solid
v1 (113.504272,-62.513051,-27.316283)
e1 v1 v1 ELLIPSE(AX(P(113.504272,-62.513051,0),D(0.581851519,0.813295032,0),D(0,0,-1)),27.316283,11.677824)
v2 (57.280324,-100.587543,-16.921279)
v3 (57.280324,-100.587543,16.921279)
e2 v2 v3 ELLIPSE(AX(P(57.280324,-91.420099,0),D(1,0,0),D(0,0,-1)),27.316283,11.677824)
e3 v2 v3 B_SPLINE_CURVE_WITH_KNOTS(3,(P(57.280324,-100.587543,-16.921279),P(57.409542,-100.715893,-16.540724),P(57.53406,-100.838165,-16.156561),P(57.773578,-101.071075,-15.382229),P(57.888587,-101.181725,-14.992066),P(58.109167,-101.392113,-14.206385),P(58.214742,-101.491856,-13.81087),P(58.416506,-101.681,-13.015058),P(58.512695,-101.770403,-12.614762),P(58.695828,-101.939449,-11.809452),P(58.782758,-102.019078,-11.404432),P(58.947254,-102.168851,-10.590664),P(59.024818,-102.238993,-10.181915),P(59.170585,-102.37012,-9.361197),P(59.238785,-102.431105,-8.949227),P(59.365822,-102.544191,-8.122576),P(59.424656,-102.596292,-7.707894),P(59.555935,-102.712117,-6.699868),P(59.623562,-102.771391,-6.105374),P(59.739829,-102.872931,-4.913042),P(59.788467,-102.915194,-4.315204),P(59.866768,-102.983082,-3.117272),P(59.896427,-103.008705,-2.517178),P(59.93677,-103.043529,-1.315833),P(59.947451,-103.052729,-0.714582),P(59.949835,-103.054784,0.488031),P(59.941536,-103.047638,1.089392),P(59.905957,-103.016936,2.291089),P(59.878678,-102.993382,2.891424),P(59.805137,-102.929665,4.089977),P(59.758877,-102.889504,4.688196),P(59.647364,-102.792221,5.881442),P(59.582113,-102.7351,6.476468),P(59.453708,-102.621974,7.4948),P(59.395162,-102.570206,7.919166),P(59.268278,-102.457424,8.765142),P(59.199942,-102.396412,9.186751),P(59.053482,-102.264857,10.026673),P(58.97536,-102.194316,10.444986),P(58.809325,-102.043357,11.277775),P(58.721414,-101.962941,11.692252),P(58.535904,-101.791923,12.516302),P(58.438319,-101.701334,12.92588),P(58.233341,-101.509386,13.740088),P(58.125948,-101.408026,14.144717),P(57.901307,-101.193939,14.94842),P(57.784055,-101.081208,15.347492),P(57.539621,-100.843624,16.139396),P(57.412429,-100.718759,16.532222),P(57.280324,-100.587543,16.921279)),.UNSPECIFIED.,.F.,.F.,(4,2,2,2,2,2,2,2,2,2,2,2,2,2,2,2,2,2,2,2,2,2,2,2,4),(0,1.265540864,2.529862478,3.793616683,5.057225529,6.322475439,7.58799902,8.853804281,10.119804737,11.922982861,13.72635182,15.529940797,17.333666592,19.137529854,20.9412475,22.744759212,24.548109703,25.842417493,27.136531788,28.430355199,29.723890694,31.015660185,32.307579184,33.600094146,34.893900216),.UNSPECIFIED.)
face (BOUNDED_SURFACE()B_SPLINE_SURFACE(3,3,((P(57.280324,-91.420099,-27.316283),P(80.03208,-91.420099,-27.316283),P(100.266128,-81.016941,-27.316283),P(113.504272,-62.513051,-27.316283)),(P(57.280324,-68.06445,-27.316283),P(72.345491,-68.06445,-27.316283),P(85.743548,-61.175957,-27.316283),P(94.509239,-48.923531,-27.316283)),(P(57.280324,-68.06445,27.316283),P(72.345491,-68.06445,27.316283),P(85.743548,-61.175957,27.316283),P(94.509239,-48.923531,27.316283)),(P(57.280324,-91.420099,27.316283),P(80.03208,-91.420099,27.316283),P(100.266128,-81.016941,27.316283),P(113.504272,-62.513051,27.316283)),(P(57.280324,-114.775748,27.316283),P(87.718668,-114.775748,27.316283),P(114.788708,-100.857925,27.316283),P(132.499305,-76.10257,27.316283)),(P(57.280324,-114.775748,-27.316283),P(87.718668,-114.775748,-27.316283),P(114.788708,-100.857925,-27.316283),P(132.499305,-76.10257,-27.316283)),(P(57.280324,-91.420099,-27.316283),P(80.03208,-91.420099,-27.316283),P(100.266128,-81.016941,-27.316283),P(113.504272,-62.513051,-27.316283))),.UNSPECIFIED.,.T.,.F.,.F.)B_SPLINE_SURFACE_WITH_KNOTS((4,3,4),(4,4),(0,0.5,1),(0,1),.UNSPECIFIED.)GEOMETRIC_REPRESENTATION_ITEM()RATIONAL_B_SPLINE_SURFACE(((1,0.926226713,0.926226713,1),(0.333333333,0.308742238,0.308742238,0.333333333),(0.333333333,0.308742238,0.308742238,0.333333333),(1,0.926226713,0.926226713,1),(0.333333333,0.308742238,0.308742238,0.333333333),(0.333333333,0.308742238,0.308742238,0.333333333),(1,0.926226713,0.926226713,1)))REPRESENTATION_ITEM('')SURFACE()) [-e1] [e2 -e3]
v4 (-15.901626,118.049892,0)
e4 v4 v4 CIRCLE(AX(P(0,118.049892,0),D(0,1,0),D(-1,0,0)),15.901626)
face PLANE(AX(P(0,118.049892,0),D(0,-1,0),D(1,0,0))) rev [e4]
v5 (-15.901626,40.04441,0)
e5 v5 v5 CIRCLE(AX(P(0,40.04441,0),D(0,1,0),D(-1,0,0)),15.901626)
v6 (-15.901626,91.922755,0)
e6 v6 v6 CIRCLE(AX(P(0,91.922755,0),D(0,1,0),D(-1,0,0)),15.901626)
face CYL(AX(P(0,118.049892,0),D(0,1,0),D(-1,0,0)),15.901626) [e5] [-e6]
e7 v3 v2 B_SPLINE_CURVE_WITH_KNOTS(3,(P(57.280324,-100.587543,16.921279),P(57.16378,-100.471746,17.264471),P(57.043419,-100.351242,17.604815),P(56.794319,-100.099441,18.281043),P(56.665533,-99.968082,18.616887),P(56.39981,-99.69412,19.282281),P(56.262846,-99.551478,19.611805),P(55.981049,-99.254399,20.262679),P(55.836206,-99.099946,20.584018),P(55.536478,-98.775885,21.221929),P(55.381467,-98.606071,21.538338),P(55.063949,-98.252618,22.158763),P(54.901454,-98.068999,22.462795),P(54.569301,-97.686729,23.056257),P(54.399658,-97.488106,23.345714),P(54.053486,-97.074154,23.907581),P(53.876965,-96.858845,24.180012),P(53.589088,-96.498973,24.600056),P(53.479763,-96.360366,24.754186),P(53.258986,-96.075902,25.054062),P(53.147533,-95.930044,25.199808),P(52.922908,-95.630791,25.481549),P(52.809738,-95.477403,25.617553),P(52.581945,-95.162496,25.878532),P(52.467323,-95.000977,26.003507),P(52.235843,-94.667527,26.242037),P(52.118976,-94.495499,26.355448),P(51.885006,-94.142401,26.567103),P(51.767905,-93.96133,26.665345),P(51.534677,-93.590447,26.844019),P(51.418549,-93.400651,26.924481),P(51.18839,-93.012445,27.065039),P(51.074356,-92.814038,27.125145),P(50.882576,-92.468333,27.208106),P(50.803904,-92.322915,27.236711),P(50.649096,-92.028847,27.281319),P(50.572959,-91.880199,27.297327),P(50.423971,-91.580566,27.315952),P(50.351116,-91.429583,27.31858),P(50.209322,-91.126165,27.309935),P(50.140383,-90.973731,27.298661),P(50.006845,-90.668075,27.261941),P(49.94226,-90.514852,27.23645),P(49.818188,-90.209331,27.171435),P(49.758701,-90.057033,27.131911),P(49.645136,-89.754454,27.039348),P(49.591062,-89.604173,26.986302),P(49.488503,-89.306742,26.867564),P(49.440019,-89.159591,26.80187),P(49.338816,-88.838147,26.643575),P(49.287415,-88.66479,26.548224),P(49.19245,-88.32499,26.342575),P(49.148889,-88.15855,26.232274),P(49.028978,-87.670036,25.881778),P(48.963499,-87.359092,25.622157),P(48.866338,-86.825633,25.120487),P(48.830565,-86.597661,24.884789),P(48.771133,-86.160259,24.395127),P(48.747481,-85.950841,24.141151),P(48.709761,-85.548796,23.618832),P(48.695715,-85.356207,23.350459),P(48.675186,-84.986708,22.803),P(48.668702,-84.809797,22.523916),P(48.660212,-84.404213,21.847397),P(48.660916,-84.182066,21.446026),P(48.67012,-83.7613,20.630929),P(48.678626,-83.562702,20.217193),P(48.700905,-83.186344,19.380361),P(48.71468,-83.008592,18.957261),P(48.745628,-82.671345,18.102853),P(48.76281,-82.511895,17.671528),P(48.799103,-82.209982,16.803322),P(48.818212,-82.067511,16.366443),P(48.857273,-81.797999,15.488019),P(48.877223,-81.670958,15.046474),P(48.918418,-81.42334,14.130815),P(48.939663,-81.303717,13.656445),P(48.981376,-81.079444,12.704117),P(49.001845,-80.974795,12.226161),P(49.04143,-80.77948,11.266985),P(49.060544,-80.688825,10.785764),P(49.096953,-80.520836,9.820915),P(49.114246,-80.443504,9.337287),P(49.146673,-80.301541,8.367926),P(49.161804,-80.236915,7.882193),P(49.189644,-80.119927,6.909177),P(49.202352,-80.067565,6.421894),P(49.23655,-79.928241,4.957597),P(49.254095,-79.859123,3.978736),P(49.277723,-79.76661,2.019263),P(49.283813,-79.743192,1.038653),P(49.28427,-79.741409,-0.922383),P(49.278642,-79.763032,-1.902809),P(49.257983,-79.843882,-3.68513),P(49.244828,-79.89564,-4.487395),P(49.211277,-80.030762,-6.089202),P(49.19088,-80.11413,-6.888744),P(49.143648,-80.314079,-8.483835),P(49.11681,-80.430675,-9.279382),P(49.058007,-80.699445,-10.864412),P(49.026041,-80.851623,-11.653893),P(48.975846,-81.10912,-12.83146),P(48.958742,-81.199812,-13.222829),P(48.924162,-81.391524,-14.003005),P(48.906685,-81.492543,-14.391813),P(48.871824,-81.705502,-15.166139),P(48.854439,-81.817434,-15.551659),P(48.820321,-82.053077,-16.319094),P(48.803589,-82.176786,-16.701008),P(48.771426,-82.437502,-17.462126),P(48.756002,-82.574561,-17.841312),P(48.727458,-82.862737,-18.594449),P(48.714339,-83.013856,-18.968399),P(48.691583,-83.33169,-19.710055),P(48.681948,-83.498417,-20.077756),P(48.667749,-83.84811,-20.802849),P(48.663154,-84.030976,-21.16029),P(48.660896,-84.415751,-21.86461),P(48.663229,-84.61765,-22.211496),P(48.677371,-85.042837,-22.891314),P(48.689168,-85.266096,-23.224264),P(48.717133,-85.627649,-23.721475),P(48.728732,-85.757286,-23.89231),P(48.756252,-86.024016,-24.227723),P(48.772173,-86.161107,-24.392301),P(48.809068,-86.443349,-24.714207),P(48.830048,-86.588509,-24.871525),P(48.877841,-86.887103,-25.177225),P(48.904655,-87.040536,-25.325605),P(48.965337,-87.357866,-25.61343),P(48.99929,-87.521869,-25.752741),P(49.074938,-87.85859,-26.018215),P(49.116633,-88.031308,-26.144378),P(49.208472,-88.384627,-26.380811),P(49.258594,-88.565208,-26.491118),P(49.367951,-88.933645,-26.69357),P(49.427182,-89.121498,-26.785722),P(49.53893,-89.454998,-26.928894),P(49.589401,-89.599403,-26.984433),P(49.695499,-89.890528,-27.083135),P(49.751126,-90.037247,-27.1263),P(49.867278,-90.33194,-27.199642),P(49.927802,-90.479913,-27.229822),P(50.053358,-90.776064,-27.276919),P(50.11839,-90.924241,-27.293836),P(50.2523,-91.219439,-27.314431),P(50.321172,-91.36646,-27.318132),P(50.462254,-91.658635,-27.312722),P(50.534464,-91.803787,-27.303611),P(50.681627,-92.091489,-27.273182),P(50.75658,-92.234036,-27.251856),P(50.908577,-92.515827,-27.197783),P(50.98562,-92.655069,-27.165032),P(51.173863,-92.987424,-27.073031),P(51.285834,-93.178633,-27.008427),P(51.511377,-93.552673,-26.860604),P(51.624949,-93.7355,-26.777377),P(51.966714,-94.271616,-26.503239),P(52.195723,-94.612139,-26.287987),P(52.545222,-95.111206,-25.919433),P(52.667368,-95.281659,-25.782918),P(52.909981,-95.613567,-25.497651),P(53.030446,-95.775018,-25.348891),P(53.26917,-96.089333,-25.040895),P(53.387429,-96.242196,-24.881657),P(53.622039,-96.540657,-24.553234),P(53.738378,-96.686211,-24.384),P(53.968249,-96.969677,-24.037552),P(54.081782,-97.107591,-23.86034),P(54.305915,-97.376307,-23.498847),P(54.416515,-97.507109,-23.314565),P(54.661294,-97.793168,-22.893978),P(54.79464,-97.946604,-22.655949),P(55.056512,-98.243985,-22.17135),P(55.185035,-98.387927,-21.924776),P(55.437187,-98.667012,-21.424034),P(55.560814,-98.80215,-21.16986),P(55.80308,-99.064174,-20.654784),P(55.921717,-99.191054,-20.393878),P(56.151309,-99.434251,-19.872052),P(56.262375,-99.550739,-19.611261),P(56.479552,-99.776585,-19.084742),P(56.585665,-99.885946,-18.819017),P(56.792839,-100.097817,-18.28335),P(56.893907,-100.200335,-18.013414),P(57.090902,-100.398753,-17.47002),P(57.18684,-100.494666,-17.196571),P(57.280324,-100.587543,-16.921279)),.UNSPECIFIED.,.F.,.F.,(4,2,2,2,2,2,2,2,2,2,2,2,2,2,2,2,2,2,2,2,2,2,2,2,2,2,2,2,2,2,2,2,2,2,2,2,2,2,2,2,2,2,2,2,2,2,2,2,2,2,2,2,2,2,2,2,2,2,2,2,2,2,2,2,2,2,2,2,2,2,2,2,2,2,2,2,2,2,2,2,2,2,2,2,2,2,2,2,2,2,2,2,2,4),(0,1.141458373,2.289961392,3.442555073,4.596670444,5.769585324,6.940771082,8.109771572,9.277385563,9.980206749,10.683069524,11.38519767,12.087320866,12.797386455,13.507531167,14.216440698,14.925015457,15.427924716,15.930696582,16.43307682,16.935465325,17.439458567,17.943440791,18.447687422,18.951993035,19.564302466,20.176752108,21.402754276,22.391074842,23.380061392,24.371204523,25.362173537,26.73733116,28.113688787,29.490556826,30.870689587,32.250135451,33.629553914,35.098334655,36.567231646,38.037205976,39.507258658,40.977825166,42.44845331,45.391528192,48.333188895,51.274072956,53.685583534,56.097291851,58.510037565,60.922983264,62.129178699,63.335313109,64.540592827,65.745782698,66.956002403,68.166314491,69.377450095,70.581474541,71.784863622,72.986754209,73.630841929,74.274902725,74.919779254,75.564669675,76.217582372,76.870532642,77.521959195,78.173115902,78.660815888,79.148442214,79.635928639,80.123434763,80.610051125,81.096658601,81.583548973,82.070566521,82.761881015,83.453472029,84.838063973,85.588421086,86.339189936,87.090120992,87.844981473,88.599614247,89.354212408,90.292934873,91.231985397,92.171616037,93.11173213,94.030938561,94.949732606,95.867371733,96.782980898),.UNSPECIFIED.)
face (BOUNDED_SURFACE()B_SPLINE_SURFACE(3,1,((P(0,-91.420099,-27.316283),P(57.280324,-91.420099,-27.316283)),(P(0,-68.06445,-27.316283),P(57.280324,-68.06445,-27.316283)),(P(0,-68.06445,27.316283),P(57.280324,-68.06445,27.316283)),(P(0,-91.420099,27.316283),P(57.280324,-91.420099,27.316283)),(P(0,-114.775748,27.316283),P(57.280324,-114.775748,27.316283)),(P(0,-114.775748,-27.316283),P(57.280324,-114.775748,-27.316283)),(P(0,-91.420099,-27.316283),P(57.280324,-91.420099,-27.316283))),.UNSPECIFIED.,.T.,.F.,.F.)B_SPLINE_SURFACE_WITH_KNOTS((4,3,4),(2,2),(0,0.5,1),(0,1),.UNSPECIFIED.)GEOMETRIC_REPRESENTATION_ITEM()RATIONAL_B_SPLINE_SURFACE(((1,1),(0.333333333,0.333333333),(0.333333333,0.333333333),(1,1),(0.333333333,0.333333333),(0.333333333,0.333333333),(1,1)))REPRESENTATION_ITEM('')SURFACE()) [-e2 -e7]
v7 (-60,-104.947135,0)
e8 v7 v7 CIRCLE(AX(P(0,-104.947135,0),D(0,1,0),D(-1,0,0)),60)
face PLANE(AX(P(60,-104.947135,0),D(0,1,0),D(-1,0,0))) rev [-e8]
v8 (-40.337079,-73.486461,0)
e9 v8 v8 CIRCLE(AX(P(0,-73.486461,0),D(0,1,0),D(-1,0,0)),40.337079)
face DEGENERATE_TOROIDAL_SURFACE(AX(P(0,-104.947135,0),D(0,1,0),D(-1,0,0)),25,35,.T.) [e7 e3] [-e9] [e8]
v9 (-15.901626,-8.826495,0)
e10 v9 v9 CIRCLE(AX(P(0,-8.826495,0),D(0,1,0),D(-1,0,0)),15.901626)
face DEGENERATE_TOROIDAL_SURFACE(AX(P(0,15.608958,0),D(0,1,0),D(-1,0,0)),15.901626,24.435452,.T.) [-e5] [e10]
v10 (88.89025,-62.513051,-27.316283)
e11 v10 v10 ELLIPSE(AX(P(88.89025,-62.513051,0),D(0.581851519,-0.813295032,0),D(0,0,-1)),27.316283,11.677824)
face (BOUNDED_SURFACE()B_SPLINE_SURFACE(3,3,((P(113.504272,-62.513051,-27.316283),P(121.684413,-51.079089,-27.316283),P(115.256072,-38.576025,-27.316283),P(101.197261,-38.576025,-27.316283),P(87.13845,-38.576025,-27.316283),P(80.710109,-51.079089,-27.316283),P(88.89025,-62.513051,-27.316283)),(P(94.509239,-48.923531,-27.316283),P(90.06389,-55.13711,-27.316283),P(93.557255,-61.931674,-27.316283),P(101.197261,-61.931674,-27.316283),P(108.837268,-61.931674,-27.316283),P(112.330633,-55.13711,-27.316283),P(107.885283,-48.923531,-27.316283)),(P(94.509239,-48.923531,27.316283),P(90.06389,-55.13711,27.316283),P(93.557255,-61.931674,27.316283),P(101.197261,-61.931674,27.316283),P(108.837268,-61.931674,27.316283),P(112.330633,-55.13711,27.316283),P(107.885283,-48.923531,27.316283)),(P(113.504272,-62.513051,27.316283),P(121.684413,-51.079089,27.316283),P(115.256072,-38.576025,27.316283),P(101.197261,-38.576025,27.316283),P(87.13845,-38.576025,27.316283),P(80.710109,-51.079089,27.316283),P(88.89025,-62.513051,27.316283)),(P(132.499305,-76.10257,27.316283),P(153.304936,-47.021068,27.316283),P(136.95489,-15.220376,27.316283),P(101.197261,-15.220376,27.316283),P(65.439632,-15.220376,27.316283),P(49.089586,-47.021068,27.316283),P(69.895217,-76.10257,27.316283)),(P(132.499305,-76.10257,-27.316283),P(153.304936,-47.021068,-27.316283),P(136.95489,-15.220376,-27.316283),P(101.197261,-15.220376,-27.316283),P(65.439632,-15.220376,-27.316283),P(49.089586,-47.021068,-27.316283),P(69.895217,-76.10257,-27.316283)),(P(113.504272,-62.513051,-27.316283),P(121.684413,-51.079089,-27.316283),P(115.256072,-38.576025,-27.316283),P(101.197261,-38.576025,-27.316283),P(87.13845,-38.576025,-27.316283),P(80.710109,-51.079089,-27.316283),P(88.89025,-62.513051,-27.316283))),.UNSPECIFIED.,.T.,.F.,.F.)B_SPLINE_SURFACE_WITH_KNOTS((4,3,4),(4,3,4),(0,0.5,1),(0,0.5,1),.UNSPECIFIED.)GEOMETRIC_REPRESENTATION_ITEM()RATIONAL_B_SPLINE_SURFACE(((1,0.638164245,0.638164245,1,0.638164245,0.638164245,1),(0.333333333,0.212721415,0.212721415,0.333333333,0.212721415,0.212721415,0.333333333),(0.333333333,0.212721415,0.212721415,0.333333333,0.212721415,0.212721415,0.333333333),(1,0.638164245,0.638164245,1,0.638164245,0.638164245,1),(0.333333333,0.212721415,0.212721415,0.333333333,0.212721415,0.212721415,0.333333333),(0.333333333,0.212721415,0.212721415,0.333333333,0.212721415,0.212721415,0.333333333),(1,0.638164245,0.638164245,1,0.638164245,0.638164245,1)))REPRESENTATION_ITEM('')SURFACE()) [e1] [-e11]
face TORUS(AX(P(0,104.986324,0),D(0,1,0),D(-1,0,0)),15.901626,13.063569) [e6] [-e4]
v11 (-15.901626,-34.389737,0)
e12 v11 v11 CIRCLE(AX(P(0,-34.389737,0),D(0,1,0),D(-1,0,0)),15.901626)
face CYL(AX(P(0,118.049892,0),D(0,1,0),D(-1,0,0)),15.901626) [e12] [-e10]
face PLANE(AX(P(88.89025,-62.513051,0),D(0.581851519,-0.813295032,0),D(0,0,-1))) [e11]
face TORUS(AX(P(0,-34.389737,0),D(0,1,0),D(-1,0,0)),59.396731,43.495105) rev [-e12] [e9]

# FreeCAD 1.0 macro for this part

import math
import FreeCAD as App
import Part
import Sketcher

V = App.Vector
Q = App.Units.Quantity

doc = App.newDocument("Part")
body = doc.addObject("PartDesign::Body", "Body")

# Sketch on XY plane
sketch1 = body.newObject("Sketcher::SketchObject", "Sketch")
sketch1.AttachmentSupport = (doc.getObject("XY_Plane"), [""])
sketch1.MapMode = "FlatFace"
sketch1.addGeometry([
    Part.LineSegment(V(16, 118, 0), V(0, 118, 0)),  # 0
    Part.LineSegment(V(0, 118, 0), V(0, -105, 0)),  # 1
    Part.LineSegment(V(0, -105, 0), V(60, -105, 0)),  # 2
    Part.ArcOfCircle(Part.Circle(V(25, -105, 0), V(0, 0, 1), 35), math.radians(0), math.radians(64)),  # 3
    Part.ArcOfCircle(Part.Circle(V(59, -34, 0), V(0, 0, 1), 43), math.radians(180), math.radians(244)),  # 4
    Part.LineSegment(V(16, -34, 0), V(16, -9, 0)),  # 5
    Part.ArcOfCircle(Part.Circle(V(16, 16, 0), V(0, 0, 1), 24), math.radians(-90), math.radians(90)),  # 6
    Part.LineSegment(V(16, 40, 0), V(16, 92, 0)),  # 7
    Part.ArcOfCircle(Part.Circle(V(16, 105, 0), V(0, 0, 1), 13), math.radians(-90), math.radians(90)),  # 8
], False)
sketch1.addConstraint([
    Sketcher.Constraint("Coincident", 0, 2, 1, 1),
    Sketcher.Constraint("Coincident", 1, 2, 2, 1),
    Sketcher.Constraint("Coincident", 2, 2, 3, 1),
    Sketcher.Constraint("Tangent", 3, 2, 4, 2),
    Sketcher.Constraint("Tangent", 4, 1, 5, 1),
    Sketcher.Constraint("Coincident", 5, 2, 6, 1),
    Sketcher.Constraint("Coincident", 6, 2, 7, 1),
    Sketcher.Constraint("Coincident", 7, 2, 8, 1),
    Sketcher.Constraint("Tangent", 8, 2, 0, 1),
    Sketcher.Constraint("Horizontal", 0),
    Sketcher.Constraint("Vertical", 1),
    Sketcher.Constraint("Horizontal", 2),
    Sketcher.Constraint("Vertical", 5),
    Sketcher.Constraint("Vertical", 7),
    Sketcher.Constraint("PointOnObject", 0, 2, -2),
    Sketcher.Constraint("Horizontal", 3, 3, 1, 2),
    Sketcher.Constraint("Vertical", 6, 3, 8, 3),
    Sketcher.Constraint("Vertical", 8, 3, 4, 1),
    Sketcher.Constraint("Vertical", 5, 2, 6, 2),
    Sketcher.Constraint("Radius", 3, Q("35 mm")),
    Sketcher.Constraint("DistanceX", 2, 1, 2, 2, Q("60 mm")),
    Sketcher.Constraint("Radius", 8, Q("13.063569 mm")),
    Sketcher.Constraint("Radius", 4, Q("43.495105 mm")),
    Sketcher.Constraint("Radius", 6, Q("24.435452 mm")),
    Sketcher.Constraint("DistanceX", 0, 2, 0, 1, Q("15.901626 mm")),
    Sketcher.Constraint("DistanceY", 1, 2, 1, 1, Q("222.997027 mm")),
    Sketcher.Constraint("DistanceY", 5, 1, 5, 2, Q("25.563242 mm")),
    Sketcher.Constraint("DistanceY", 3, 2, -1, 1, Q("73.486461 mm")),
])
revolution = body.newObject("PartDesign::Revolution", "Revolution")
revolution.Profile = sketch1
revolution.ReferenceAxis = (sketch1, ["V_Axis"])
revolution.Angle = 360

# Sketch on YZ plane
sketch2 = body.newObject("Sketcher::SketchObject", "Sketch001")
sketch2.AttachmentSupport = (doc.getObject("YZ_Plane"), [""])
sketch2.MapMode = "FlatFace"
sketch2.addGeometry(Part.Ellipse(V(-91.420099, -27.316283, 0), V(-79.742274, 0, 0), V(-91.420099, 0, 0)), False)
sketch2.addConstraint(Sketcher.Constraint("Block", 0))

# Sketch on XY plane
sketch3 = body.newObject("Sketcher::SketchObject", "Sketch002")
sketch3.AttachmentSupport = (doc.getObject("XY_Plane"), [""])
sketch3.MapMode = "FlatFace"
sketch3.addGeometry([
    Part.LineSegment(V(0, -91, 0), V(57, -91, 0)),
    Part.ArcOfCircle(Part.Circle(V(57, -22, 0), V(0, 0, 1), 69), math.radians(-90), math.radians(-36)),
    Part.ArcOfCircle(Part.Circle(V(101, -54, 0), V(0, 0, 1), 15), math.radians(-36), math.radians(216)),
], False)
sketch3.addConstraint([
    Sketcher.Constraint("Tangent", 0, 2, 1, 1),
    Sketcher.Constraint("Tangent", 1, 2, 2, 1),
    Sketcher.Constraint("Horizontal", 0),
    Sketcher.Constraint("PointOnObject", 0, 1, -2),
    Sketcher.Constraint("Horizontal", 1, 2, 2, 2),
    Sketcher.Constraint("Radius", 1, Q("69.131061 mm")),
    Sketcher.Constraint("Radius", 2, Q("15.132284 mm")),
    Sketcher.Constraint("DistanceY", 0, 1, -1, 1, Q("91.420099 mm")),
    Sketcher.Constraint("DistanceX", 0, 1, 0, 2, Q("57.280324 mm")),
    Sketcher.Constraint("DistanceX", -1, 1, 2, 3, Q("101.197261 mm")),
])
doc.recompute()

additivepipe = body.newObject("PartDesign::AdditivePipe", "AdditivePipe")
additivepipe.Profile = sketch2
additivepipe.Spine = (sketch3, ["Edge1", "Edge2", "Edge3"])

doc.recompute()
